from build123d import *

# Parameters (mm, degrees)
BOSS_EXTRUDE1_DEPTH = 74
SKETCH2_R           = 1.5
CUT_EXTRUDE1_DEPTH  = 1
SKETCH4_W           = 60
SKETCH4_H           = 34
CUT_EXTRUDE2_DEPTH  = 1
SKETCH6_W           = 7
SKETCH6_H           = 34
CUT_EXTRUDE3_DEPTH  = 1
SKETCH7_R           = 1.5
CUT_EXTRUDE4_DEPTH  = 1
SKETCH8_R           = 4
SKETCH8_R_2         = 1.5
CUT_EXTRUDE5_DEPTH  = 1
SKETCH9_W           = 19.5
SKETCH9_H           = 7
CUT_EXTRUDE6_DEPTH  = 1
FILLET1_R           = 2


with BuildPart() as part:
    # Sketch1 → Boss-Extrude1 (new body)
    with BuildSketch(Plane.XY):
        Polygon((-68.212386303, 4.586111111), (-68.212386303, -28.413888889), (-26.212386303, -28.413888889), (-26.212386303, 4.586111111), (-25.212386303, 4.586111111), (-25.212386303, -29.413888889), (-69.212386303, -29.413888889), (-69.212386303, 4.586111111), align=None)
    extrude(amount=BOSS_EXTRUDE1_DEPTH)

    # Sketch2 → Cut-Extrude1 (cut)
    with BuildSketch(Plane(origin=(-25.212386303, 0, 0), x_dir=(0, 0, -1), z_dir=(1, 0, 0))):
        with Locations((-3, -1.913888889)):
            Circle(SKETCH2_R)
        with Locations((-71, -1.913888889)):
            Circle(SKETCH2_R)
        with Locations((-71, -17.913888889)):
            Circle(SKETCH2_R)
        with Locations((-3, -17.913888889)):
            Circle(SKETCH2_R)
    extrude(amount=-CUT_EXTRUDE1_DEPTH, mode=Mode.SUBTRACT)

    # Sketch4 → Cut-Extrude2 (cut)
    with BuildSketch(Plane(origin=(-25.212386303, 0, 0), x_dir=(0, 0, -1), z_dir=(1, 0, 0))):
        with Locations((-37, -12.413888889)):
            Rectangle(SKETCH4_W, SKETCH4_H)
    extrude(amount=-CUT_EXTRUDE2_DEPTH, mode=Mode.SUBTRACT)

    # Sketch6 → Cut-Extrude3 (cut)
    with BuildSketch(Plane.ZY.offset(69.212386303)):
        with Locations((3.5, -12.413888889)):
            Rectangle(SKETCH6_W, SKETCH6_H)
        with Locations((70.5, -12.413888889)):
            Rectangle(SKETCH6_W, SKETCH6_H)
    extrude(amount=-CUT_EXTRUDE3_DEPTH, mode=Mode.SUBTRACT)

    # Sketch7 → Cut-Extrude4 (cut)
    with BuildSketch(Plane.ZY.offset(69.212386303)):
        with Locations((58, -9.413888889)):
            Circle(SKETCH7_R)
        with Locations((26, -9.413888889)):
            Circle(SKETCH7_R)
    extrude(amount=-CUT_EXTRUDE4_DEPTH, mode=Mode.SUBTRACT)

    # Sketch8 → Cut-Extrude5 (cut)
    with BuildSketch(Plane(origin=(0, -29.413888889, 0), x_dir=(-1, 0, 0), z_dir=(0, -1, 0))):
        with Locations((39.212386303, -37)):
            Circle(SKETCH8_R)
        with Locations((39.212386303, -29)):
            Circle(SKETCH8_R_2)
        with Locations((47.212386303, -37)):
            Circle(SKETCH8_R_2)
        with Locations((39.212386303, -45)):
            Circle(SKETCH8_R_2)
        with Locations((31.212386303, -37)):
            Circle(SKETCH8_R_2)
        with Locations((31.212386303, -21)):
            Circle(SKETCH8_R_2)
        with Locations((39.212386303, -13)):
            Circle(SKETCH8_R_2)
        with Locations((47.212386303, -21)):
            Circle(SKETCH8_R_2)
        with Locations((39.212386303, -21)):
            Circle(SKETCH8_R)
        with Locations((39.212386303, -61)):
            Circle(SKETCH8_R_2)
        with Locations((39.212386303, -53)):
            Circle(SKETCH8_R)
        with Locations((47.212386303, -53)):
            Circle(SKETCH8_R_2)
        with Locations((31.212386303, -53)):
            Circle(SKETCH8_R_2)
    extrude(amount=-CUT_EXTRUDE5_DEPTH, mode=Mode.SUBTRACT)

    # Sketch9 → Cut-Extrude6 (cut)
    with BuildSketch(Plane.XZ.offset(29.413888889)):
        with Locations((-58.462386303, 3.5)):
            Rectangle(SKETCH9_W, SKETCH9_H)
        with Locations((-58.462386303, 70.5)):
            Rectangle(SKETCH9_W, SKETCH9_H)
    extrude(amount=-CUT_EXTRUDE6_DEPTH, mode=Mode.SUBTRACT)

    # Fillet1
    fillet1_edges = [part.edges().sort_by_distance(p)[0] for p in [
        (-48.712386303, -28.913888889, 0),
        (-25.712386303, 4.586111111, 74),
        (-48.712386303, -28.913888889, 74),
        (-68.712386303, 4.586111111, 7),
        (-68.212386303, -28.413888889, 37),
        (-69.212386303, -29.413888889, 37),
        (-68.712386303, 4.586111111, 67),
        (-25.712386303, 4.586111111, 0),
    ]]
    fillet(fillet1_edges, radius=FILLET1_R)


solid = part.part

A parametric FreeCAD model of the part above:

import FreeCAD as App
import Part
import Sketcher
from FreeCAD import Vector
Q = App.Units.Quantity


def edges_at(feature, points):
    """Names of the edges that pass closest to the given points."""
    edges = feature.Shape.Edges
    near = lambda p: min(range(len(edges)), key=lambda i: edges[i].distToShape(Part.Vertex(*p))[0])
    return sorted({f"Edge{near(p) + 1}" for p in points})


def add_polygon(sketch, points):
    """Adds a closed chain of lines whose ends are joined by coincident constraints."""
    first, n = sketch.GeometryCount, len(points)
    for a, b in zip(points, points[1:] + points[:1]):
        sketch.addGeometry(Part.LineSegment(App.Vector(*a, 0), App.Vector(*b, 0)), False)
    for i in range(n):
        sketch.addConstraint(Sketcher.Constraint("Coincident", first + i, 2, first + (i + 1) % n, 1))

doc = App.newDocument("Part")
body = doc.addObject("PartDesign::Body", "Body")

# Sketch on XY plane
sketch1 = body.newObject("Sketcher::SketchObject", "Sketch")
sketch1.AttachmentSupport = (doc.getObject("XY_Plane"), [""])
sketch1.MapMode = "FlatFace"
add_polygon(sketch1, [(-68.212386, -28.413889), (-68.212386, 4.586111), (-69.212386, 4.586111), (-69.212386, -29.413889), (-25.212386, -29.413889), (-25.212386, 4.586111), (-26.212386, 4.586111), (-26.212386, -28.413889)])  # lines 0-7
sketch1.addConstraint(Sketcher.Constraint("Vertical", 0))
sketch1.addConstraint(Sketcher.Constraint("Horizontal", 1))
sketch1.addConstraint(Sketcher.Constraint("Vertical", 2))
sketch1.addConstraint(Sketcher.Constraint("Horizontal", 3))
sketch1.addConstraint(Sketcher.Constraint("Vertical", 4))
sketch1.addConstraint(Sketcher.Constraint("Horizontal", 5))
sketch1.addConstraint(Sketcher.Constraint("Vertical", 6))
sketch1.addConstraint(Sketcher.Constraint("Horizontal", 7))
sketch1.addConstraint(Sketcher.Constraint("Horizontal", 1, 2, 4, 2))
sketch1.addConstraint(Sketcher.Constraint("Equal", 1, 5))
sketch1.addConstraint(Sketcher.Constraint("DistanceX", 1, 2, 1, 1, Q("1 mm")))
sketch1.addConstraint(Sketcher.Constraint("DistanceX", 3, 1, 3, 2, Q("44 mm")))
sketch1.addConstraint(Sketcher.Constraint("DistanceY", 0, 1, 0, 2, Q("33 mm")))
sketch1.addConstraint(Sketcher.Constraint("DistanceY", 2, 2, 2, 1, Q("34 mm")))
sketch1.addConstraint(Sketcher.Constraint("DistanceY", -1, 1, 0, 2, Q("4.586111 mm")))
sketch1.addConstraint(Sketcher.Constraint("DistanceX", 0, 2, -1, 1, Q("68.212386 mm")))
pad1 = body.newObject("PartDesign::Pad", "Pad")
pad1.Profile = sketch1
pad1.Length = 74

# Sketch on YZ plane
sketch2 = body.newObject("Sketcher::SketchObject", "Sketch001")
sketch2.AttachmentSupport = (doc.getObject("YZ_Plane"), [""])
sketch2.MapMode = "FlatFace"
sketch2.AttachmentOffset = App.Placement(Vector(0, 0, -25.212386), App.Rotation())
sketch2.addGeometry(Part.Circle(Vector(-1.913889, 3, 0), Vector(0, 0, 1), 1.5), False)
sketch2.addGeometry(Part.Circle(Vector(-1.913889, 71, 0), Vector(0, 0, 1), 1.5), False)
sketch2.addGeometry(Part.Circle(Vector(-17.913889, 71, 0), Vector(0, 0, 1), 1.5), False)
sketch2.addGeometry(Part.Circle(Vector(-17.913889, 3, 0), Vector(0, 0, 1), 1.5), False)
sketch2.addConstraint(Sketcher.Constraint("Equal", 0, 1))
sketch2.addConstraint(Sketcher.Constraint("Equal", 1, 2))
sketch2.addConstraint(Sketcher.Constraint("Equal", 2, 3))
sketch2.addConstraint(Sketcher.Constraint("Horizontal", 1, 3, 2, 3))
sketch2.addConstraint(Sketcher.Constraint("Horizontal", 0, 3, 3, 3))
sketch2.addConstraint(Sketcher.Constraint("Vertical", 0, 3, 1, 3))
sketch2.addConstraint(Sketcher.Constraint("Vertical", 2, 3, 3, 3))
sketch2.addConstraint(Sketcher.Constraint("Diameter", 0, Q("3 mm")))
sketch2.addConstraint(Sketcher.Constraint("DistanceY", -1, 1, 0, 3, Q("3 mm")))
sketch2.addConstraint(Sketcher.Constraint("DistanceY", -1, 1, 1, 3, Q("71 mm")))
sketch2.addConstraint(Sketcher.Constraint("DistanceX", 2, 3, 1, 3, Q("16 mm")))
sketch2.addConstraint(Sketcher.Constraint("DistanceX", 0, 3, -1, 1, Q("1.913889 mm")))
pocket1 = body.newObject("PartDesign::Pocket", "Pocket")
pocket1.Profile = sketch2
pocket1.Length = 1

# Sketch on YZ plane
sketch3 = body.newObject("Sketcher::SketchObject", "Sketch002")
sketch3.AttachmentSupport = (doc.getObject("YZ_Plane"), [""])
sketch3.MapMode = "FlatFace"
sketch3.AttachmentOffset = App.Placement(Vector(0, 0, -25.212386), App.Rotation())
add_polygon(sketch3, [(4.586111, 67), (-29.413889, 67), (-29.413889, 7), (4.586111, 7)])  # lines 0-3
sketch3.addConstraint(Sketcher.Constraint("Horizontal", 0))
sketch3.addConstraint(Sketcher.Constraint("Vertical", 1))
sketch3.addConstraint(Sketcher.Constraint("Horizontal", 2))
sketch3.addConstraint(Sketcher.Constraint("Vertical", 3))
sketch3.addConstraint(Sketcher.Constraint("DistanceX", 0, 2, 0, 1, Q("34 mm")))
sketch3.addConstraint(Sketcher.Constraint("DistanceY", 1, 2, 1, 1, Q("60 mm")))
sketch3.addConstraint(Sketcher.Constraint("DistanceY", -1, 1, 0, 2, Q("67 mm")))
sketch3.addConstraint(Sketcher.Constraint("DistanceX", 0, 2, -1, 1, Q("29.413889 mm")))
pocket2 = body.newObject("PartDesign::Pocket", "Pocket001")
pocket2.Profile = sketch3
pocket2.Length = 1

# Sketch on YZ plane
sketch4 = body.newObject("Sketcher::SketchObject", "Sketch003")
sketch4.AttachmentSupport = (doc.getObject("YZ_Plane"), [""])
sketch4.MapMode = "FlatFace"
sketch4.AttachmentOffset = App.Placement(Vector(0, 0, -69.212386), App.Rotation())
add_polygon(sketch4, [(4.586111, 0), (-29.413889, 0), (-29.413889, 7), (4.586111, 7)])  # lines 0-3
add_polygon(sketch4, [(4.586111, 67), (-29.413889, 67), (-29.413889, 74), (4.586111, 74)])  # lines 4-7
sketch4.addConstraint(Sketcher.Constraint("Horizontal", 0))
sketch4.addConstraint(Sketcher.Constraint("Vertical", 1))
sketch4.addConstraint(Sketcher.Constraint("Horizontal", 2))
sketch4.addConstraint(Sketcher.Constraint("Vertical", 3))
sketch4.addConstraint(Sketcher.Constraint("Horizontal", 4))
sketch4.addConstraint(Sketcher.Constraint("Vertical", 5))
sketch4.addConstraint(Sketcher.Constraint("Horizontal", 6))
sketch4.addConstraint(Sketcher.Constraint("Vertical", 7))
sketch4.addConstraint(Sketcher.Constraint("PointOnObject", 0, 2, -1))
sketch4.addConstraint(Sketcher.Constraint("Vertical", 1, 2, 4, 2))
sketch4.addConstraint(Sketcher.Constraint("Vertical", 3, 2, 6, 2))
sketch4.addConstraint(Sketcher.Constraint("Equal", 3, 5))
sketch4.addConstraint(Sketcher.Constraint("DistanceX", 0, 2, 0, 1, Q("34 mm")))
sketch4.addConstraint(Sketcher.Constraint("DistanceY", 1, 1, 1, 2, Q("7 mm")))
sketch4.addConstraint(Sketcher.Constraint("DistanceY", -1, 1, 4, 2, Q("67 mm")))
sketch4.addConstraint(Sketcher.Constraint("DistanceX", 0, 2, -1, 1, Q("29.413889 mm")))
pocket3 = body.newObject("PartDesign::Pocket", "Pocket002")
pocket3.Profile = sketch4
pocket3.Length = 1
pocket3.Reversed = True

# Sketch on YZ plane
sketch5 = body.newObject("Sketcher::SketchObject", "Sketch004")
sketch5.AttachmentSupport = (doc.getObject("YZ_Plane"), [""])
sketch5.MapMode = "FlatFace"
sketch5.AttachmentOffset = App.Placement(Vector(0, 0, -69.212386), App.Rotation())
sketch5.addGeometry(Part.Circle(Vector(-9.413889, 58, 0), Vector(0, 0, 1), 1.5), False)
sketch5.addGeometry(Part.Circle(Vector(-9.413889, 26, 0), Vector(0, 0, 1), 1.5), False)
sketch5.addConstraint(Sketcher.Constraint("Equal", 0, 1))
sketch5.addConstraint(Sketcher.Constraint("Vertical", 0, 3, 1, 3))
sketch5.addConstraint(Sketcher.Constraint("Diameter", 0, Q("3 mm")))
sketch5.addConstraint(Sketcher.Constraint("DistanceY", -1, 1, 0, 3, Q("58 mm")))
sketch5.addConstraint(Sketcher.Constraint("DistanceY", -1, 1, 1, 3, Q("26 mm")))
sketch5.addConstraint(Sketcher.Constraint("DistanceX", 0, 3, -1, 1, Q("9.413889 mm")))
pocket4 = body.newObject("PartDesign::Pocket", "Pocket003")
pocket4.Profile = sketch5
pocket4.Length = 1
pocket4.Reversed = True

# Sketch on XZ plane
sketch6 = body.newObject("Sketcher::SketchObject", "Sketch005")
sketch6.AttachmentSupport = (doc.getObject("XZ_Plane"), [""])
sketch6.MapMode = "FlatFace"
sketch6.AttachmentOffset = App.Placement(Vector(0, 0, 29.413889), App.Rotation())
sketch6.addGeometry(Part.Circle(Vector(-39.212386, 37, 0), Vector(0, 0, 1), 4), False)
sketch6.addGeometry(Part.Circle(Vector(-39.212386, 29, 0), Vector(0, 0, 1), 1.5), False)
sketch6.addGeometry(Part.Circle(Vector(-47.212386, 37, 0), Vector(0, 0, 1), 1.5), False)
sketch6.addGeometry(Part.Circle(Vector(-39.212386, 45, 0), Vector(0, 0, 1), 1.5), False)
sketch6.addGeometry(Part.Circle(Vector(-31.212386, 37, 0), Vector(0, 0, 1), 1.5), False)
sketch6.addGeometry(Part.Circle(Vector(-31.212386, 21, 0), Vector(0, 0, 1), 1.5), False)
sketch6.addGeometry(Part.Circle(Vector(-39.212386, 13, 0), Vector(0, 0, 1), 1.5), False)
sketch6.addGeometry(Part.Circle(Vector(-47.212386, 21, 0), Vector(0, 0, 1), 1.5), False)
sketch6.addGeometry(Part.Circle(Vector(-39.212386, 21, 0), Vector(0, 0, 1), 4), False)
sketch6.addGeometry(Part.Circle(Vector(-39.212386, 61, 0), Vector(0, 0, 1), 1.5), False)
sketch6.addGeometry(Part.Circle(Vector(-39.212386, 53, 0), Vector(0, 0, 1), 4), False)
sketch6.addGeometry(Part.Circle(Vector(-47.212386, 53, 0), Vector(0, 0, 1), 1.5), False)
sketch6.addGeometry(Part.Circle(Vector(-31.212386, 53, 0), Vector(0, 0, 1), 1.5), False)
sketch6.addConstraint(Sketcher.Constraint("Equal", 1, 2))
sketch6.addConstraint(Sketcher.Constraint("Equal", 2, 3))
sketch6.addConstraint(Sketcher.Constraint("Equal", 3, 4))
sketch6.addConstraint(Sketcher.Constraint("Equal", 4, 5))
sketch6.addConstraint(Sketcher.Constraint("Equal", 5, 6))
sketch6.addConstraint(Sketcher.Constraint("Equal", 6, 7))
sketch6.addConstraint(Sketcher.Constraint("Equal", 0, 8))
sketch6.addConstraint(Sketcher.Constraint("Equal", 7, 9))
sketch6.addConstraint(Sketcher.Constraint("Equal", 8, 10))
sketch6.addConstraint(Sketcher.Constraint("Equal", 9, 11))
sketch6.addConstraint(Sketcher.Constraint("Equal", 11, 12))
sketch6.addConstraint(Sketcher.Constraint("Horizontal", 0, 3, 2, 3))
sketch6.addConstraint(Sketcher.Constraint("Horizontal", 2, 3, 4, 3))
sketch6.addConstraint(Sketcher.Constraint("Horizontal", 5, 3, 7, 3))
sketch6.addConstraint(Sketcher.Constraint("Horizontal", 7, 3, 8, 3))
sketch6.addConstraint(Sketcher.Constraint("Horizontal", 10, 3, 11, 3))
sketch6.addConstraint(Sketcher.Constraint("Horizontal", 11, 3, 12, 3))
sketch6.addConstraint(Sketcher.Constraint("Vertical", 0, 3, 1, 3))
sketch6.addConstraint(Sketcher.Constraint("Vertical", 1, 3, 3, 3))
sketch6.addConstraint(Sketcher.Constraint("Vertical", 4, 3, 5, 3))
sketch6.addConstraint(Sketcher.Constraint("Vertical", 3, 3, 6, 3))
sketch6.addConstraint(Sketcher.Constraint("Vertical", 2, 3, 7, 3))
sketch6.addConstraint(Sketcher.Constraint("Vertical", 6, 3, 8, 3))
sketch6.addConstraint(Sketcher.Constraint("Vertical", 8, 3, 9, 3))
sketch6.addConstraint(Sketcher.Constraint("Vertical", 9, 3, 10, 3))
sketch6.addConstraint(Sketcher.Constraint("Vertical", 7, 3, 11, 3))
sketch6.addConstraint(Sketcher.Constraint("Vertical", 5, 3, 12, 3))
sketch6.addConstraint(Sketcher.Constraint("Diameter", 0, Q("8 mm")))
sketch6.addConstraint(Sketcher.Constraint("Diameter", 1, Q("3 mm")))
sketch6.addConstraint(Sketcher.Constraint("DistanceY", -1, 1, 0, 3, Q("37 mm")))
sketch6.addConstraint(Sketcher.Constraint("DistanceY", -1, 1, 1, 3, Q("29 mm")))
sketch6.addConstraint(Sketcher.Constraint("DistanceY", -1, 1, 3, 3, Q("45 mm")))
sketch6.addConstraint(Sketcher.Constraint("DistanceY", -1, 1, 5, 3, Q("21 mm")))
sketch6.addConstraint(Sketcher.Constraint("DistanceY", -1, 1, 6, 3, Q("13 mm")))
sketch6.addConstraint(Sketcher.Constraint("DistanceY", -1, 1, 9, 3, Q("61 mm")))
sketch6.addConstraint(Sketcher.Constraint("DistanceY", -1, 1, 10, 3, Q("53 mm")))
sketch6.addConstraint(Sketcher.Constraint("DistanceX", 2, 3, 0, 3, Q("8 mm")))
sketch6.addConstraint(Sketcher.Constraint("DistanceX", 0, 3, 4, 3, Q("8 mm")))
sketch6.addConstraint(Sketcher.Constraint("DistanceX", 0, 3, -1, 1, Q("39.212386 mm")))
pocket5 = body.newObject("PartDesign::Pocket", "Pocket004")
pocket5.Profile = sketch6
pocket5.Length = 1

# Sketch on XZ plane
sketch7 = body.newObject("Sketcher::SketchObject", "Sketch006")
sketch7.AttachmentSupport = (doc.getObject("XZ_Plane"), [""])
sketch7.MapMode = "FlatFace"
sketch7.AttachmentOffset = App.Placement(Vector(0, 0, 29.413889), App.Rotation())
add_polygon(sketch7, [(-68.212386, 7), (-68.212386, 0), (-48.712386, 0), (-48.712386, 7)])  # lines 0-3
add_polygon(sketch7, [(-68.212386, 74), (-68.212386, 67), (-48.712386, 67), (-48.712386, 74)])  # lines 4-7
sketch7.addConstraint(Sketcher.Constraint("Vertical", 0))
sketch7.addConstraint(Sketcher.Constraint("Horizontal", 1))
sketch7.addConstraint(Sketcher.Constraint("Vertical", 2))
sketch7.addConstraint(Sketcher.Constraint("Horizontal", 3))
sketch7.addConstraint(Sketcher.Constraint("Vertical", 4))
sketch7.addConstraint(Sketcher.Constraint("Horizontal", 5))
sketch7.addConstraint(Sketcher.Constraint("Vertical", 6))
sketch7.addConstraint(Sketcher.Constraint("Horizontal", 7))
sketch7.addConstraint(Sketcher.Constraint("PointOnObject", 0, 2, -1))
sketch7.addConstraint(Sketcher.Constraint("Vertical", 3, 2, 4, 2))
sketch7.addConstraint(Sketcher.Constraint("Vertical", 2, 2, 5, 2))
sketch7.addConstraint(Sketcher.Constraint("Equal", 2, 4))
sketch7.addConstraint(Sketcher.Constraint("DistanceY", 0, 2, 0, 1, Q("7 mm")))
sketch7.addConstraint(Sketcher.Constraint("DistanceX", 1, 1, 1, 2, Q("19.5 mm")))
sketch7.addConstraint(Sketcher.Constraint("DistanceY", -1, 1, 4, 2, Q("67 mm")))
sketch7.addConstraint(Sketcher.Constraint("DistanceX", 0, 2, -1, 1, Q("68.212386 mm")))
pocket6 = body.newObject("PartDesign::Pocket", "Pocket005")
pocket6.Profile = sketch7
pocket6.Length = 1
doc.recompute()

fillet = body.newObject("PartDesign::Fillet", "Fillet")
fillet.Base = (pocket6, edges_at(pocket6, [
    (-48.712, -28.914, 0),
    (-25.712, 4.586, 74),
    (-48.712, -28.914, 74),
    (-68.712, 4.586, 7),
    (-68.212, -28.414, 37),
    (-69.212, -29.414, 37),
    (-68.712, 4.586, 67),
    (-25.712, 4.586, 0),
]))
fillet.Radius = 2

doc.recompute()
